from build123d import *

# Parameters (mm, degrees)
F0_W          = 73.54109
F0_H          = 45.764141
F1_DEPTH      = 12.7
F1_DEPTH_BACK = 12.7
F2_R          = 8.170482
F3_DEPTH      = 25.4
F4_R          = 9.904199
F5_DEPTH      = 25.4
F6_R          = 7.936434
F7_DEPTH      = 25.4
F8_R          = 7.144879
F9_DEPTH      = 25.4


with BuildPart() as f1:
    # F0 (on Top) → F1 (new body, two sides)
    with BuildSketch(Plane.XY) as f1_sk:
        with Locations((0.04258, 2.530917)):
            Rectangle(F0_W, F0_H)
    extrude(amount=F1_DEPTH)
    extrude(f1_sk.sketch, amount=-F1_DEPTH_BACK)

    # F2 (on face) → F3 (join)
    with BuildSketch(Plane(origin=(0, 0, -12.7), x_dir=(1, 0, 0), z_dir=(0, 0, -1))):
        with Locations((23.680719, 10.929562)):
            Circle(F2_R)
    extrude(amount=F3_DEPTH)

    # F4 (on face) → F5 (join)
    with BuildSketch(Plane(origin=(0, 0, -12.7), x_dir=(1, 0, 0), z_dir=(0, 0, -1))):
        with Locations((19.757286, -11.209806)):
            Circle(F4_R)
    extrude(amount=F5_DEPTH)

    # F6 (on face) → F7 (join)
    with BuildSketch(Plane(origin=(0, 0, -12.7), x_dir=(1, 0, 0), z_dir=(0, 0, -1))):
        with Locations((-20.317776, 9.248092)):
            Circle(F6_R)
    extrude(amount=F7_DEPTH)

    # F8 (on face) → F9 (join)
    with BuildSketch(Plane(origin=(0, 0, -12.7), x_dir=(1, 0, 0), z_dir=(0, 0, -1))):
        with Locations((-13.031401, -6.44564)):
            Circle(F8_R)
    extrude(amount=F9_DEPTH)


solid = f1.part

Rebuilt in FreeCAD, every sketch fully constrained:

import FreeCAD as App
import Part
import Sketcher
from FreeCAD import Vector
Q = App.Units.Quantity


def add_polygon(sketch, points):
    """Adds a closed chain of lines whose ends are joined by coincident constraints."""
    first, n = sketch.GeometryCount, len(points)
    for a, b in zip(points, points[1:] + points[:1]):
        sketch.addGeometry(Part.LineSegment(App.Vector(*a, 0), App.Vector(*b, 0)), False)
    for i in range(n):
        sketch.addConstraint(Sketcher.Constraint("Coincident", first + i, 2, first + (i + 1) % n, 1))

doc = App.newDocument("Part")
body = doc.addObject("PartDesign::Body", "Body")

sketch1 = doc.addObject("Sketcher::SketchObject", "Sketch")
body.addObject(sketch1)
sketch1.AttachmentSupport = (doc.XY_Plane, [""])
sketch1.MapMode = "FlatFace"
add_polygon(sketch1, [(-37, 25), (-37, -20), (37, -20), (37, 25)])
sketch1.addConstraint(Sketcher.Constraint("Vertical", 0))
sketch1.addConstraint(Sketcher.Constraint("Horizontal", 1))
sketch1.addConstraint(Sketcher.Constraint("Vertical", 2))
sketch1.addConstraint(Sketcher.Constraint("Horizontal", 3))
sketch1.addConstraint(Sketcher.Constraint("DistanceX", 1, 1, 1, 2, Q("73.54109 mm")))
sketch1.addConstraint(Sketcher.Constraint("DistanceY", 0, 2, 0, 1, Q("45.764141 mm")))
sketch1.addConstraint(Sketcher.Constraint("DistanceX", 0, 2, -1, 1, Q("36.727965 mm")))
sketch1.addConstraint(Sketcher.Constraint("DistanceY", 0, 2, -1, 1, Q("20.351153 mm")))
pad1 = doc.addObject("PartDesign::Pad", "Pad")
body.addObject(pad1)
pad1.Profile = sketch1
pad1.Type = "TwoLengths"
pad1.Length = Q("0.5 in")
pad1.Length2 = Q("0.5 in")

sketch2 = doc.addObject("Sketcher::SketchObject", "Sketch001")
body.addObject(sketch2)
sketch2.AttachmentSupport = (doc.XY_Plane, [""])
sketch2.MapMode = "FlatFace"
sketch2.AttachmentOffset = App.Placement(Vector(0, 0, -0.5 * 25.4), App.Rotation())
sketch2.addGeometry(Part.Circle(Vector(24, -11, 0), Vector(0, 0, 1), 8), False)
sketch2.addConstraint(Sketcher.Constraint("Diameter", 0, Q("16.340964 mm")))
sketch2.addConstraint(Sketcher.Constraint("DistanceX", -1, 1, 0, 3, Q("23.680719 mm")))
sketch2.addConstraint(Sketcher.Constraint("DistanceY", 0, 3, -1, 1, Q("10.929562 mm")))
pad2 = doc.addObject("PartDesign::Pad", "Pad001")
body.addObject(pad2)
pad2.Profile = sketch2
pad2.Length = Q("1 in")
pad2.Reversed = True

sketch3 = doc.addObject("Sketcher::SketchObject", "Sketch002")
body.addObject(sketch3)
sketch3.AttachmentSupport = (doc.XY_Plane, [""])
sketch3.MapMode = "FlatFace"
sketch3.AttachmentOffset = App.Placement(Vector(0, 0, -0.5 * 25.4), App.Rotation())
sketch3.addGeometry(Part.Circle(Vector(20, 11, 0), Vector(0, 0, 1), 10), False)
sketch3.addConstraint(Sketcher.Constraint("Diameter", 0, Q("19.808398 mm")))
sketch3.addConstraint(Sketcher.Constraint("DistanceX", -1, 1, 0, 3, Q("19.757286 mm")))
sketch3.addConstraint(Sketcher.Constraint("DistanceY", -1, 1, 0, 3, Q("11.209806 mm")))
pad3 = doc.addObject("PartDesign::Pad", "Pad002")
body.addObject(pad3)
pad3.Profile = sketch3
pad3.Length = Q("1 in")
pad3.Reversed = True

sketch4 = doc.addObject("Sketcher::SketchObject", "Sketch003")
body.addObject(sketch4)
sketch4.AttachmentSupport = (doc.XY_Plane, [""])
sketch4.MapMode = "FlatFace"
sketch4.AttachmentOffset = App.Placement(Vector(0, 0, -0.5 * 25.4), App.Rotation())
sketch4.addGeometry(Part.Circle(Vector(-20, -9, 0), Vector(0, 0, 1), 8), False)
sketch4.addConstraint(Sketcher.Constraint("Diameter", 0, Q("15.872868 mm")))
sketch4.addConstraint(Sketcher.Constraint("DistanceX", 0, 3, -1, 1, Q("20.317776 mm")))
sketch4.addConstraint(Sketcher.Constraint("DistanceY", 0, 3, -1, 1, Q("9.248092 mm")))
pad4 = doc.addObject("PartDesign::Pad", "Pad003")
body.addObject(pad4)
pad4.Profile = sketch4
pad4.Length = Q("1 in")
pad4.Reversed = True

sketch5 = doc.addObject("Sketcher::SketchObject", "Sketch004")
body.addObject(sketch5)
sketch5.AttachmentSupport = (doc.XY_Plane, [""])
sketch5.MapMode = "FlatFace"
sketch5.AttachmentOffset = App.Placement(Vector(0, 0, -0.5 * 25.4), App.Rotation())
sketch5.addGeometry(Part.Circle(Vector(-13, 6, 0), Vector(0, 0, 1), 7), False)
sketch5.addConstraint(Sketcher.Constraint("Diameter", 0, Q("14.289758 mm")))
sketch5.addConstraint(Sketcher.Constraint("DistanceX", 0, 3, -1, 1, Q("13.031401 mm")))
sketch5.addConstraint(Sketcher.Constraint("DistanceY", -1, 1, 0, 3, Q("6.44564 mm")))
pad5 = doc.addObject("PartDesign::Pad", "Pad004")
body.addObject(pad5)
pad5.Profile = sketch5
pad5.Length = Q("1 in")
pad5.Reversed = True

doc.recompute()
